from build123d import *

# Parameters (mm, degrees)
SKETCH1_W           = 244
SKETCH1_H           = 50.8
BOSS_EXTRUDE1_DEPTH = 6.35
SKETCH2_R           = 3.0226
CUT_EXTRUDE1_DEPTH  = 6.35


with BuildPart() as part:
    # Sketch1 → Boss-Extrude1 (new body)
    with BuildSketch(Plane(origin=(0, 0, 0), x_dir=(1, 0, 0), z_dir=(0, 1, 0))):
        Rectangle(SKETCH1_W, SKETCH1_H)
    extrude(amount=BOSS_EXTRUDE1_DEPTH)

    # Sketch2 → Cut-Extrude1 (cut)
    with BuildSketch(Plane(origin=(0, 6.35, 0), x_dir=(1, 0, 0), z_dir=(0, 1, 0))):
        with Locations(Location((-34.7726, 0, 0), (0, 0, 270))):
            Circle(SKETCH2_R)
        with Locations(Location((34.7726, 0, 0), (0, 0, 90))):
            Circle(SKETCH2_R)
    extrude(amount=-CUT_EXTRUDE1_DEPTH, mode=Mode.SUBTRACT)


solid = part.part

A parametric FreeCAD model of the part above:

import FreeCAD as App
import Part
import Sketcher
from FreeCAD import Vector
Q = App.Units.Quantity


def add_polygon(sketch, points):
    """Adds a closed chain of lines whose ends are joined by coincident constraints."""
    first, n = sketch.GeometryCount, len(points)
    for a, b in zip(points, points[1:] + points[:1]):
        sketch.addGeometry(Part.LineSegment(App.Vector(*a, 0), App.Vector(*b, 0)), False)
    for i in range(n):
        sketch.addConstraint(Sketcher.Constraint("Coincident", first + i, 2, first + (i + 1) % n, 1))

doc = App.newDocument("Part")
params = doc.addObject("Spreadsheet::Sheet", "Params")
for row, (alias, value) in enumerate([
    ("sketch1_height", "2 in"),
    ("pad1_length", "0.25 in"),
    ("sketch2_diameter", "0.238 in"),
    ("pocket1_length", "0.25 in"),
], start=1):
    params.set(f"A{row}", alias)
    params.set(f"B{row}", "=" + value)
    params.setAlias(f"B{row}", alias)

body = doc.addObject("PartDesign::Body", "Body")

# Sketch on XZ plane
sketch1 = doc.addObject("Sketcher::SketchObject", "Sketch")
body.addObject(sketch1)
sketch1.AttachmentSupport = (doc.XZ_Plane, [""])
sketch1.MapMode = "FlatFace"
add_polygon(sketch1, [(-122, -25.4), (-122, 25.4), (122, 25.4), (122, -25.4)])  # lines 0-3
sketch1.addConstraint([
    Sketcher.Constraint("Vertical", 0),
    Sketcher.Constraint("Horizontal", 1),
    Sketcher.Constraint("Vertical", 2),
    Sketcher.Constraint("Horizontal", 3),
    Sketcher.Constraint("Symmetric", 0, 2, 2, 2, -1, 1),
    Sketcher.Constraint("DistanceY", 0, 1, 0, 2, Q("2 in")),
    Sketcher.Constraint("DistanceX", 1, 1, 1, 2, 244.0),
])
sketch1.setExpression("Constraints[9]", "Params.sketch1_height")
pad1 = doc.addObject("PartDesign::Pad", "Pad")
body.addObject(pad1)
pad1.Profile = sketch1
pad1.setExpression("Length", "Params.pad1_length")
pad1.Reversed = True

# Sketch on XZ plane
sketch2 = doc.addObject("Sketcher::SketchObject", "Sketch001")
body.addObject(sketch2)
sketch2.AttachmentSupport = (doc.XZ_Plane, [""])
sketch2.MapMode = "FlatFace"
sketch2.AttachmentOffset = App.Placement(Vector(0, 0, -0.25 * 25.4), App.Rotation())
sketch2.addGeometry([
    Part.Circle(Vector(-34.7726, 0, 0), Vector(0, 0, 1), 3.0226),
    Part.Circle(Vector(34.7726, 0, 0), Vector(0, 0, 1), 3.0226),
], False)
sketch2.addConstraint([
    Sketcher.Constraint("Equal", 0, 1),
    Sketcher.Constraint("Symmetric", 0, 3, 1, 3, -1, 1),
    Sketcher.Constraint("PointOnObject", 0, 3, -1),
    Sketcher.Constraint("Diameter", 0, Q("0.238 in")),
    Sketcher.Constraint("DistanceX", 0, 3, -1, 1, Q("1.369 in")),
])
sketch2.setExpression("Constraints[3]", "Params.sketch2_diameter")
pocket1 = doc.addObject("PartDesign::Pocket", "Pocket")
body.addObject(pocket1)
pocket1.Profile = sketch2
pocket1.setExpression("Length", "Params.pocket1_length")
pocket1.Reversed = True

doc.recompute()
